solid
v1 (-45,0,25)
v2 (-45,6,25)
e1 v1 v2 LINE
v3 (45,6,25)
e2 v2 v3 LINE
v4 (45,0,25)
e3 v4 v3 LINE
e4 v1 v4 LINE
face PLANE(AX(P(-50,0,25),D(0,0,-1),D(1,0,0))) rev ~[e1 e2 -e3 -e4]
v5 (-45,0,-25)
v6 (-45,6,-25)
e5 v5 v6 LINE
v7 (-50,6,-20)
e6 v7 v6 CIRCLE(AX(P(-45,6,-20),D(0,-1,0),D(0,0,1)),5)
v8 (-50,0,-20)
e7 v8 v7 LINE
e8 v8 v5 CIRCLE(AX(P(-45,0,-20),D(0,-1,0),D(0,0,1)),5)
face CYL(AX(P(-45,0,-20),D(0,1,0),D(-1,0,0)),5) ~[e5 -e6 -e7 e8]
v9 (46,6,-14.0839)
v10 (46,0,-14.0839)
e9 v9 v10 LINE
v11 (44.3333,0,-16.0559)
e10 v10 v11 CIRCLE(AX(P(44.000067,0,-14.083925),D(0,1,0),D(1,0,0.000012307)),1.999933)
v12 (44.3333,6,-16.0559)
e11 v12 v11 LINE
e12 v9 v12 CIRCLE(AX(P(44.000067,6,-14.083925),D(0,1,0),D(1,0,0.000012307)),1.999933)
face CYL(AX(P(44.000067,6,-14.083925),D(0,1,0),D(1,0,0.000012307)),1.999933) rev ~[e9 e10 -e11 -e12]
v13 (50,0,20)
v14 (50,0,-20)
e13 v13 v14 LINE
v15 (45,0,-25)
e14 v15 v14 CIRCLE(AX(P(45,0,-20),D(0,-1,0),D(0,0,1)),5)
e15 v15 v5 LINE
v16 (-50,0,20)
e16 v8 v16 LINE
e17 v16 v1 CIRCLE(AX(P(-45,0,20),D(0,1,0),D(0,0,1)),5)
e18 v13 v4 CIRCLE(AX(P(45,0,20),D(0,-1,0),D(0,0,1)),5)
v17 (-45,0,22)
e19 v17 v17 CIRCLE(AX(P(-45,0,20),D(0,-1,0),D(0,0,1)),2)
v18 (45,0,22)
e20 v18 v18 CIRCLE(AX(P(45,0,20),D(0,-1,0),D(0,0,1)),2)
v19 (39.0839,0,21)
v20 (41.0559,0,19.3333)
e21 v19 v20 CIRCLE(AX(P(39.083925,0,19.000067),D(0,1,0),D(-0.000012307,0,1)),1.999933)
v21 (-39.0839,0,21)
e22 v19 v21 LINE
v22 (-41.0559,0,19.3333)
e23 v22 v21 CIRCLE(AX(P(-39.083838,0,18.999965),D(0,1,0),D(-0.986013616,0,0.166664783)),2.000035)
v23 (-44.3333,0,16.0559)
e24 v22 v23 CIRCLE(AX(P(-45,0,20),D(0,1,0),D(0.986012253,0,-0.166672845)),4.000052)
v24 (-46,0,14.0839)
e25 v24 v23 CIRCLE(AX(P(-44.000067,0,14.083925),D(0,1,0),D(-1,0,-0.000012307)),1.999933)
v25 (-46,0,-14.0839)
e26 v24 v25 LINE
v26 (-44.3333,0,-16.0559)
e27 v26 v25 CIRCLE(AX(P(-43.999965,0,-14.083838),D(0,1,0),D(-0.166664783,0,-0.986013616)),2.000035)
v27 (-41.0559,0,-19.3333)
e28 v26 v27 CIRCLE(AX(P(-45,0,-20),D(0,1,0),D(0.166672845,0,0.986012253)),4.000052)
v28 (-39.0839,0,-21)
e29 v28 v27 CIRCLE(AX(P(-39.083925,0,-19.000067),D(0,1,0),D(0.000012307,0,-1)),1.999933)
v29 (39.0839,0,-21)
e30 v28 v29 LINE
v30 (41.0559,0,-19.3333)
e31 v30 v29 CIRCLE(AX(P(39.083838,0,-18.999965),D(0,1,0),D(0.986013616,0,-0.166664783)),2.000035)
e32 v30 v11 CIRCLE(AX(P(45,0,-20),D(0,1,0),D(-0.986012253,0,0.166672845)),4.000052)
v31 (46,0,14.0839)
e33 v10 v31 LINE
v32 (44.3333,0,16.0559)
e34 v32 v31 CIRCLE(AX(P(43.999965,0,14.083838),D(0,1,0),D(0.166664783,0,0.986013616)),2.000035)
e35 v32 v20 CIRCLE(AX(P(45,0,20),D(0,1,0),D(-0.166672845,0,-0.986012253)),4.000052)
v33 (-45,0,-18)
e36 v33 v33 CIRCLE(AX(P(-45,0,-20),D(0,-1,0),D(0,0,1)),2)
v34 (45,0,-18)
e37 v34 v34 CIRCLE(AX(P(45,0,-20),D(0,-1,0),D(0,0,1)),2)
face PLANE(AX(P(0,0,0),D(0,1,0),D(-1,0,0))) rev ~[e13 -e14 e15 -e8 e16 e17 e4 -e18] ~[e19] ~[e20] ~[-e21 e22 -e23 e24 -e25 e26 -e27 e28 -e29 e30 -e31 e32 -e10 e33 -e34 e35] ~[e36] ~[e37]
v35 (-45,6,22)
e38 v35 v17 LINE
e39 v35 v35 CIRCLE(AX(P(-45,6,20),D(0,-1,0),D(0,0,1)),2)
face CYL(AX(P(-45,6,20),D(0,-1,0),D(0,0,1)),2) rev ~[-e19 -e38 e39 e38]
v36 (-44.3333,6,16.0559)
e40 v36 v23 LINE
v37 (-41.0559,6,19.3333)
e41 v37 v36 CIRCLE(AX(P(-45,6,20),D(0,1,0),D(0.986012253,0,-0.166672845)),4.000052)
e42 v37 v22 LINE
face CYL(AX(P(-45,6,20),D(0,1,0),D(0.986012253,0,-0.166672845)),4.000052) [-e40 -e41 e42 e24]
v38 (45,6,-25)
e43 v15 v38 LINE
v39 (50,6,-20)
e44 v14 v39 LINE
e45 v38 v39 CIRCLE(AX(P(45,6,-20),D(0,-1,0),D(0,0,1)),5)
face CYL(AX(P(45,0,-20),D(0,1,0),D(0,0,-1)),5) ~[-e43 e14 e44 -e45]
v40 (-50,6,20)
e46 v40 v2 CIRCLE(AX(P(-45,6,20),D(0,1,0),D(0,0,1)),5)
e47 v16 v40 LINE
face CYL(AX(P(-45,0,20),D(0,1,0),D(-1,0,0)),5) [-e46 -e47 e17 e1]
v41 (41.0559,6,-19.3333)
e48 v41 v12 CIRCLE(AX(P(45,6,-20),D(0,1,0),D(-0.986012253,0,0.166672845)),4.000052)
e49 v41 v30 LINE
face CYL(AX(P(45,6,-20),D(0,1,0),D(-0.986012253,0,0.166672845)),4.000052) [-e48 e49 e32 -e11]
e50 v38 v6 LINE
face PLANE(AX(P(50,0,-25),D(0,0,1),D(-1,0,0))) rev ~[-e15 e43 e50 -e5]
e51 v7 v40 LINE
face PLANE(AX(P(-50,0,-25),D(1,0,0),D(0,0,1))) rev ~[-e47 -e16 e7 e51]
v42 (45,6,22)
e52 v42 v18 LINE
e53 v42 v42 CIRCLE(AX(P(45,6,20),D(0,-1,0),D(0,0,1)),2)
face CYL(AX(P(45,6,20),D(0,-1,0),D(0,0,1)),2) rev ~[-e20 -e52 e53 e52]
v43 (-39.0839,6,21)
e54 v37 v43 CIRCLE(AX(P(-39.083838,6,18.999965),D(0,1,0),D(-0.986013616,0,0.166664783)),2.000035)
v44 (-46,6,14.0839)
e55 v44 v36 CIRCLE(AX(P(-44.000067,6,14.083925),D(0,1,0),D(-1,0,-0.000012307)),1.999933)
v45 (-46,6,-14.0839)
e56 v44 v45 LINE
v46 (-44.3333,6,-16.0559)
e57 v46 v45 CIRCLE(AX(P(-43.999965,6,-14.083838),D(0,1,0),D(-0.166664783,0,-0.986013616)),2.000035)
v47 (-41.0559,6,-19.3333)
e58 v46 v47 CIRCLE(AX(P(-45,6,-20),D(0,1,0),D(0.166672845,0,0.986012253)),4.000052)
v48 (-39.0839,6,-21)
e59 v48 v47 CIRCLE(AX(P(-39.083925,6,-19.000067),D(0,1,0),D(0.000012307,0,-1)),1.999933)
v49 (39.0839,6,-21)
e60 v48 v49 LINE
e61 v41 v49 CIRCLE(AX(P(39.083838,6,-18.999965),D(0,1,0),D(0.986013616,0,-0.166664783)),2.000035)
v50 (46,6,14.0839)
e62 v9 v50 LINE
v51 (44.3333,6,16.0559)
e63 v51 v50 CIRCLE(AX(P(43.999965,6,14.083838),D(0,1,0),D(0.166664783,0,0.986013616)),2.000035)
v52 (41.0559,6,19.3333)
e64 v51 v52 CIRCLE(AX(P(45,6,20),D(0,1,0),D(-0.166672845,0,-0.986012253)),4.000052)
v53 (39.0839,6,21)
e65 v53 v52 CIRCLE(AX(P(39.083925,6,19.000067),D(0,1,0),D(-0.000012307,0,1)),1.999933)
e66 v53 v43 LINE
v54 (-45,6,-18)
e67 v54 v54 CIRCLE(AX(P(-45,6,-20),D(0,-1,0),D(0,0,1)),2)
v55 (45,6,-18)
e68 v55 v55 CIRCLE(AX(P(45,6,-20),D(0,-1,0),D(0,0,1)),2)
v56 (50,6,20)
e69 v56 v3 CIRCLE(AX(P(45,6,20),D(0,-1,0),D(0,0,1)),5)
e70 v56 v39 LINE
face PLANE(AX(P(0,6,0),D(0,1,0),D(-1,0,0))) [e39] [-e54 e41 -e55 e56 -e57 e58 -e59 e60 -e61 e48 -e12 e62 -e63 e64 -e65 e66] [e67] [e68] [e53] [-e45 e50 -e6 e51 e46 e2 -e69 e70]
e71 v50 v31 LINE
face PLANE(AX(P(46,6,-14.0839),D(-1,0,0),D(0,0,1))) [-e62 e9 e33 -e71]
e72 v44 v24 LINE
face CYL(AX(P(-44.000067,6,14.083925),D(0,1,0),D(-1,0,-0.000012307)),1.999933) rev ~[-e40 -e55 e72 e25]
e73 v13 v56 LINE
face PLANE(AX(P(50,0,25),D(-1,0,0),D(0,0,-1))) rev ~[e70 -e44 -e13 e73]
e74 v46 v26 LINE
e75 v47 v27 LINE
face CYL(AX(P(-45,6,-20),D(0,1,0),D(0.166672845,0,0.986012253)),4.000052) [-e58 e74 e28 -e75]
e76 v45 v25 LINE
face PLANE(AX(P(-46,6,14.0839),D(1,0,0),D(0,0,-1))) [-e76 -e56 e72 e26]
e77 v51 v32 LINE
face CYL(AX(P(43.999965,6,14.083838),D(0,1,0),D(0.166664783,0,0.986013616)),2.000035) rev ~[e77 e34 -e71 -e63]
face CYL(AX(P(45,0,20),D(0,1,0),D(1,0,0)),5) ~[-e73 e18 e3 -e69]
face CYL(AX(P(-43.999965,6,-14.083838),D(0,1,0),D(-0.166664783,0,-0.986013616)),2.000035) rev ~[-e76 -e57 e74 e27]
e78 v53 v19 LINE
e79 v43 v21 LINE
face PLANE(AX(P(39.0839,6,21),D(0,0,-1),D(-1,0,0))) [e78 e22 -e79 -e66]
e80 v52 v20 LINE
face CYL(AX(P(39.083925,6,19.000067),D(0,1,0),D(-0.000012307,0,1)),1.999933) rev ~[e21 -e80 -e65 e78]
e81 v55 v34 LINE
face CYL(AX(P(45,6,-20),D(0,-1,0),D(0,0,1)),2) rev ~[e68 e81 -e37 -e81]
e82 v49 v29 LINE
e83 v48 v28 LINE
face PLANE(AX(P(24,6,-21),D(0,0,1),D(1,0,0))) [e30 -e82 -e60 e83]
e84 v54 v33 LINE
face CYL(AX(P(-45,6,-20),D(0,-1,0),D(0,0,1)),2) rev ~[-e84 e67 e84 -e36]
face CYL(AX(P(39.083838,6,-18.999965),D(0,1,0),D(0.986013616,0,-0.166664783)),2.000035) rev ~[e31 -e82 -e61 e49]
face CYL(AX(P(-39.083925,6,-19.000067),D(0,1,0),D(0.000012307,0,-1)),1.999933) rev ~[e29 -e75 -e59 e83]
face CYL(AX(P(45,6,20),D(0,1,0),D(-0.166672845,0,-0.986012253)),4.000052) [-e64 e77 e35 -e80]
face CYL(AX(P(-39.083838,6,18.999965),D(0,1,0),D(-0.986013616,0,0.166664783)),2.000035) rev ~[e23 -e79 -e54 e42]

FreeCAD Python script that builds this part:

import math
import FreeCAD as App
import Part
import Sketcher
Q = App.Units.Quantity


def edges_at(feature, points):
    """Names of the edges that pass closest to the given points."""
    edges = feature.Shape.Edges
    near = lambda p: min(range(len(edges)), key=lambda i: edges[i].distToShape(Part.Vertex(*p))[0])
    return sorted({f"Edge{near(p) + 1}" for p in points})


def add_polygon(sketch, points):
    """Adds a closed chain of lines whose ends are joined by coincident constraints."""
    first, n = sketch.GeometryCount, len(points)
    for a, b in zip(points, points[1:] + points[:1]):
        sketch.addGeometry(Part.LineSegment(App.Vector(*a, 0), App.Vector(*b, 0)), False)
    for i in range(n):
        sketch.addConstraint(Sketcher.Constraint("Coincident", first + i, 2, first + (i + 1) % n, 1))

doc = App.newDocument("Part")
body = doc.addObject("PartDesign::Body", "Body")

sketch1 = body.newObject("Sketcher::SketchObject", "Sketch")
sketch1.AttachmentSupport = (doc.getObject("XZ_Plane"), [""])
sketch1.MapMode = "FlatFace"
add_polygon(sketch1, [(-50, -25), (-50, 25), (50, 25), (50, -25)])
sketch1.addConstraint(Sketcher.Constraint("Vertical", 0))
sketch1.addConstraint(Sketcher.Constraint("Horizontal", 1))
sketch1.addConstraint(Sketcher.Constraint("Vertical", 2))
sketch1.addConstraint(Sketcher.Constraint("Horizontal", 3))
sketch1.addConstraint(Sketcher.Constraint("Symmetric", 0, 2, 2, 2, -1, 1))
sketch1.addConstraint(Sketcher.Constraint("DistanceX", 1, 1, 1, 2, Q("100 mm")))
sketch1.addConstraint(Sketcher.Constraint("DistanceY", 0, 1, 0, 2, Q("50 mm")))
pad1 = body.newObject("PartDesign::Pad", "Pad")
pad1.Profile = sketch1
pad1.Length = 6
pad1.Reversed = True
doc.recompute()

fillet = body.newObject("PartDesign::Fillet", "Fillet")
fillet.Base = (pad1, edges_at(pad1, [
    (50, 3, 25),
    (50, 3, -25),
    (-50, 3, -25),
    (-50, 3, 25),
]))
fillet.Radius = 5

sketch2 = body.newObject("Sketcher::SketchObject", "Sketch001")
sketch2.AttachmentSupport = (doc.getObject("XZ_Plane"), [""])
sketch2.MapMode = "FlatFace"
sketch2.AttachmentOffset = App.Placement(App.Vector(0, 0, -6), App.Rotation())
sketch2.addGeometry(Part.Circle(App.Vector(-45, -20, 0), App.Vector(0, 0, 1), 2), False)
sketch2.addGeometry(Part.Circle(App.Vector(45, -20, 0), App.Vector(0, 0, 1), 2), False)
sketch2.addGeometry(Part.Circle(App.Vector(45, 20, 0), App.Vector(0, 0, 1), 2), False)
sketch2.addGeometry(Part.Circle(App.Vector(-45, 20, 0), App.Vector(0, 0, 1), 2), False)
sketch2.addConstraint(Sketcher.Constraint("Equal", 0, 1))
sketch2.addConstraint(Sketcher.Constraint("Equal", 1, 2))
sketch2.addConstraint(Sketcher.Constraint("Equal", 2, 3))
sketch2.addConstraint(Sketcher.Constraint("Symmetric", 0, 3, 2, 3, -1, 1))
sketch2.addConstraint(Sketcher.Constraint("Symmetric", 1, 3, 3, 3, -1, 1))
sketch2.addConstraint(Sketcher.Constraint("Symmetric", 0, 3, 1, 3, -2))
sketch2.addConstraint(Sketcher.Constraint("Diameter", 0, Q("4 mm")))
sketch2.addConstraint(Sketcher.Constraint("DistanceX", 0, 3, -1, 1, Q("45 mm")))
sketch2.addConstraint(Sketcher.Constraint("DistanceY", 0, 3, -1, 1, Q("20 mm")))
doc.recompute()
hole = body.newObject("PartDesign::Hole", "Hole")
hole.Profile = sketch2
hole.ThreadType = "None"
hole.Diameter = 4
hole.DepthType = "ThroughAll"
hole.Reversed = True

sketch3 = body.newObject("Sketcher::SketchObject", "Sketch002")
sketch3.AttachmentSupport = (doc.getObject("XZ_Plane"), [""])
sketch3.MapMode = "FlatFace"
sketch3.AttachmentOffset = App.Placement(App.Vector(0, 0, -6), App.Rotation())
sketch3.addGeometry(Part.ArcOfCircle(Part.Circle(App.Vector(-39.1, -19, 0), App.Vector(0, 0, 1), 2), math.radians(-170), math.radians(-90)), False)
sketch3.addGeometry(Part.ArcOfCircle(Part.Circle(App.Vector(-45, -20, 0), App.Vector(0, 0, 1), 4), math.radians(10), math.radians(80)), False)
sketch3.addGeometry(Part.ArcOfCircle(Part.Circle(App.Vector(-44, -14.1, 0), App.Vector(0, 0, 1), 2), math.radians(180), math.radians(260)), False)
sketch3.addGeometry(Part.LineSegment(App.Vector(-46, -14.1, 0), App.Vector(-46, 14.1, 0)), False)
sketch3.addGeometry(Part.ArcOfCircle(Part.Circle(App.Vector(-44, 14.1, 0), App.Vector(0, 0, 1), 2), math.radians(100), math.radians(180)), False)
sketch3.addGeometry(Part.ArcOfCircle(Part.Circle(App.Vector(-45, 20, 0), App.Vector(0, 0, 1), 4), math.radians(-80), math.radians(-10)), False)
sketch3.addGeometry(Part.ArcOfCircle(Part.Circle(App.Vector(-39.1, 19, 0), App.Vector(0, 0, 1), 2), math.radians(90), math.radians(170)), False)
sketch3.addGeometry(Part.LineSegment(App.Vector(-39.1, 21, 0), App.Vector(39.1, 21, 0)), False)
sketch3.addGeometry(Part.ArcOfCircle(Part.Circle(App.Vector(39.1, 19, 0), App.Vector(0, 0, 1), 2), math.radians(10), math.radians(90)), False)
sketch3.addGeometry(Part.ArcOfCircle(Part.Circle(App.Vector(45, 20, 0), App.Vector(0, 0, 1), 4), math.radians(-170), math.radians(-100)), False)
sketch3.addGeometry(Part.ArcOfCircle(Part.Circle(App.Vector(44, 14.1, 0), App.Vector(0, 0, 1), 2), math.radians(0), math.radians(80)), False)
sketch3.addGeometry(Part.LineSegment(App.Vector(46, 14.1, 0), App.Vector(46, -14.1, 0)), False)
sketch3.addGeometry(Part.ArcOfCircle(Part.Circle(App.Vector(44, -14.1, 0), App.Vector(0, 0, 1), 2), math.radians(-80), math.radians(0)), False)
sketch3.addGeometry(Part.ArcOfCircle(Part.Circle(App.Vector(45, -20, 0), App.Vector(0, 0, 1), 4), math.radians(100), math.radians(170)), False)
sketch3.addGeometry(Part.ArcOfCircle(Part.Circle(App.Vector(39.1, -19, 0), App.Vector(0, 0, 1), 2), math.radians(-90), math.radians(-10)), False)
sketch3.addGeometry(Part.LineSegment(App.Vector(39.1, -21, 0), App.Vector(-39.1, -21, 0)), False)
sketch3.addConstraint(Sketcher.Constraint("Tangent", 0, 1, 1, 1))
sketch3.addConstraint(Sketcher.Constraint("Tangent", 1, 2, 2, 2))
sketch3.addConstraint(Sketcher.Constraint("Tangent", 2, 1, 3, 1))
sketch3.addConstraint(Sketcher.Constraint("Tangent", 3, 2, 4, 2))
sketch3.addConstraint(Sketcher.Constraint("Tangent", 4, 1, 5, 1))
sketch3.addConstraint(Sketcher.Constraint("Tangent", 5, 2, 6, 2))
sketch3.addConstraint(Sketcher.Constraint("Tangent", 6, 1, 7, 1))
sketch3.addConstraint(Sketcher.Constraint("Tangent", 7, 2, 8, 2))
sketch3.addConstraint(Sketcher.Constraint("Tangent", 8, 1, 9, 1))
sketch3.addConstraint(Sketcher.Constraint("Tangent", 9, 2, 10, 2))
sketch3.addConstraint(Sketcher.Constraint("Tangent", 10, 1, 11, 1))
sketch3.addConstraint(Sketcher.Constraint("Tangent", 11, 2, 12, 2))
sketch3.addConstraint(Sketcher.Constraint("Tangent", 12, 1, 13, 1))
sketch3.addConstraint(Sketcher.Constraint("Tangent", 13, 2, 14, 2))
sketch3.addConstraint(Sketcher.Constraint("Tangent", 14, 1, 15, 1))
sketch3.addConstraint(Sketcher.Constraint("Tangent", 15, 2, 0, 2))
sketch3.addConstraint(Sketcher.Constraint("Vertical", 3))
sketch3.addConstraint(Sketcher.Constraint("Horizontal", 7))
sketch3.addConstraint(Sketcher.Constraint("Vertical", 11))
sketch3.addConstraint(Sketcher.Constraint("Horizontal", 15))
sketch3.addConstraint(Sketcher.Constraint("Equal", 0, 2))
sketch3.addConstraint(Sketcher.Constraint("Equal", 2, 4))
sketch3.addConstraint(Sketcher.Constraint("Equal", 1, 5))
sketch3.addConstraint(Sketcher.Constraint("Equal", 4, 6))
sketch3.addConstraint(Sketcher.Constraint("Equal", 6, 8))
sketch3.addConstraint(Sketcher.Constraint("Equal", 5, 9))
sketch3.addConstraint(Sketcher.Constraint("Equal", 8, 10))
sketch3.addConstraint(Sketcher.Constraint("Equal", 10, 12))
sketch3.addConstraint(Sketcher.Constraint("Equal", 9, 13))
sketch3.addConstraint(Sketcher.Constraint("Equal", 12, 14))
sketch3.addConstraint(Sketcher.Constraint("Symmetric", 0, 3, 8, 3, -1, 1))
sketch3.addConstraint(Sketcher.Constraint("Symmetric", 2, 3, 10, 3, -1, 1))
sketch3.addConstraint(Sketcher.Constraint("Symmetric", 5, 3, 13, 3, -1, 1))
sketch3.addConstraint(Sketcher.Constraint("Symmetric", 5, 3, 9, 3, -2))
sketch3.addConstraint(Sketcher.Constraint("Radius", 0, Q("2 mm")))
sketch3.addConstraint(Sketcher.Constraint("Radius", 1, Q("4 mm")))
sketch3.addConstraint(Sketcher.Constraint("DistanceY", 0, 3, -1, 1, Q("19 mm")))
sketch3.addConstraint(Sketcher.Constraint("DistanceX", 1, 3, -1, 1, Q("45 mm")))
sketch3.addConstraint(Sketcher.Constraint("DistanceY", 1, 3, -1, 1, Q("20 mm")))
sketch3.addConstraint(Sketcher.Constraint("DistanceX", 2, 3, -1, 1, Q("44 mm")))
pocket1 = body.newObject("PartDesign::Pocket", "Pocket")
pocket1.Profile = sketch3
pocket1.Length = 10
pocket1.Reversed = True

doc.recompute()
